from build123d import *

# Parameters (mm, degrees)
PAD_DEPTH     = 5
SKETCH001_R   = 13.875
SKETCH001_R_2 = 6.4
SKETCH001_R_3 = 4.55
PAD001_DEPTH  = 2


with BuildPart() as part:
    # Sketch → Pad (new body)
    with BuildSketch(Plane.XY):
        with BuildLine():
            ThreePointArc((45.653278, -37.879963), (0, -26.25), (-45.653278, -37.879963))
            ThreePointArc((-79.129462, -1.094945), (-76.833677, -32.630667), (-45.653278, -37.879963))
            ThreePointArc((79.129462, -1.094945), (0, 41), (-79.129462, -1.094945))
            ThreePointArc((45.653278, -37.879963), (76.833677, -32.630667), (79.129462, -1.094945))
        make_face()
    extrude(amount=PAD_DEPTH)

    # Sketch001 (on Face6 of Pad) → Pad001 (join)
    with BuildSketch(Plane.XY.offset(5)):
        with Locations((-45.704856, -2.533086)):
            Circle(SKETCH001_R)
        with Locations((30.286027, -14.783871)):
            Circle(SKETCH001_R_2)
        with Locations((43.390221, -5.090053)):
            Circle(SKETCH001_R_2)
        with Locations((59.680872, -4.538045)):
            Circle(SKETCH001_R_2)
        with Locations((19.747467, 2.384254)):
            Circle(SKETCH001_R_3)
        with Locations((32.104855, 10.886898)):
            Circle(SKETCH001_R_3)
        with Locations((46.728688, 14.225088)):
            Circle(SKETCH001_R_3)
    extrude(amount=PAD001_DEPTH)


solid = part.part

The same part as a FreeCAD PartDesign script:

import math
import FreeCAD as App
import Part
import Sketcher
from FreeCAD import Vector
Q = App.Units.Quantity

doc = App.newDocument("Part")
params = doc.addObject("Spreadsheet::Sheet", "Params")
for row, (alias, value) in enumerate([
    ("pad1_length", "5 mm"),
    ("sketch2_diameter", "12.8 mm"),
    ("sketch2_diameter2", "9.1 mm"),
    ("sketch2_diameter3", "27.75 mm"),
    ("pad2_length", "2 mm"),
], start=1):
    params.set(f"A{row}", alias)
    params.set(f"B{row}", "=" + value)
    params.setAlias(f"B{row}", alias)

body = doc.addObject("PartDesign::Body", "Body")

# Sketch on XY plane
sketch1 = body.newObject("Sketcher::SketchObject", "Sketch")
sketch1.AttachmentSupport = (doc.getObject("XY_Plane"), [""])
sketch1.MapMode = "FlatFace"
sketch1.addGeometry([
    Part.ArcOfCircle(Part.Circle(Vector(0, -122, 0), Vector(0, 0, 1), 95), math.radians(61), math.radians(119)),
    Part.ArcOfCircle(Part.Circle(Vector(58, -15, 0), Vector(0, 0, 1), 26), math.radians(-119), math.radians(34)),
    Part.ArcOfCircle(Part.Circle(Vector(0, -54, 0), Vector(0, 0, 1), 95), math.radians(34), math.radians(146)),
    Part.ArcOfCircle(Part.Circle(Vector(-58, -15, 0), Vector(0, 0, 1), 26), math.radians(146), math.radians(299)),
], False)
sketch1.addConstraint([
    Sketcher.Constraint("Tangent", 0, 1, 1, 1),
    Sketcher.Constraint("Tangent", 1, 2, 2, 1),
    Sketcher.Constraint("Tangent", 2, 2, 3, 1),
    Sketcher.Constraint("Tangent", 3, 2, 0, 2),
    Sketcher.Constraint("Equal", 0, 2),
    Sketcher.Constraint("Equal", 1, 3),
    Sketcher.Constraint("Symmetric", 1, 3, 3, 3, -2),
    Sketcher.Constraint("DistanceY", 0, 3, 2, 3, Q("67.249999 mm")),
    Sketcher.Constraint("Radius", 0, Q("95.420675 mm")),
    Sketcher.Constraint("Radius", 1, Q("25.599054 mm")),
    Sketcher.Constraint("DistanceY", 0, 3, -1, 1, Q("121.670675 mm")),
])
pad1 = body.newObject("PartDesign::Pad", "Pad")
pad1.Profile = sketch1
pad1.setExpression("Length", "Params.pad1_length")

# Sketch on XY plane
sketch2 = body.newObject("Sketcher::SketchObject", "Sketch001")
sketch2.AttachmentSupport = (doc.getObject("XY_Plane"), [""])
sketch2.MapMode = "FlatFace"
sketch2.AttachmentOffset = App.Placement(Vector(0, 0, 5), App.Rotation())
sketch2.addGeometry([
    Part.Circle(Vector(-45.7, -2.5, 0), Vector(0, 0, 1), 13.9),  # 0
    Part.Circle(Vector(30.3, -14.8, 0), Vector(0, 0, 1), 6.4),  # 1
    Part.Circle(Vector(43.4, -5.1, 0), Vector(0, 0, 1), 6.4),  # 2
    Part.Circle(Vector(59.7, -4.5, 0), Vector(0, 0, 1), 6.4),  # 3
    Part.Circle(Vector(19.7, 2.4, 0), Vector(0, 0, 1), 4.5),  # 4
    Part.Circle(Vector(32.1, 10.9, 0), Vector(0, 0, 1), 4.5),  # 5
    Part.Circle(Vector(46.7, 14.2, 0), Vector(0, 0, 1), 4.5),  # 6
], False)
sketch2.addConstraint([
    Sketcher.Constraint("Equal", 1, 2),
    Sketcher.Constraint("Equal", 2, 3),
    Sketcher.Constraint("Equal", 4, 5),
    Sketcher.Constraint("Equal", 5, 6),
    Sketcher.Constraint("Diameter", 1, Q("12.8 mm")),
    Sketcher.Constraint("Diameter", 4, Q("9.1 mm")),
    Sketcher.Constraint("Diameter", 0, Q("27.75 mm")),
    Sketcher.Constraint("DistanceY", 3, 3, 4, 3, Q("6.922299 mm")),
    Sketcher.Constraint("DistanceY", 1, 3, -1, 1, Q("14.783871 mm")),
    Sketcher.Constraint("DistanceX", -1, 1, 2, 3, Q("43.390221 mm")),
    Sketcher.Constraint("DistanceX", 2, 3, 3, 3, Q("16.290651 mm")),
    Sketcher.Constraint("DistanceX", 0, 3, 3, 3, Q("105.385728 mm")),
    Sketcher.Constraint("DistanceY", 3, 3, 0, 3, Q("2.004959 mm")),
    Sketcher.Constraint("DistanceX", 4, 3, 1, 3, Q("10.53856 mm")),
    Sketcher.Constraint("DistanceY", 2, 3, 5, 3, Q("15.976951 mm")),
    Sketcher.Constraint("DistanceY", 1, 3, 5, 3, Q("25.670769 mm")),
    Sketcher.Constraint("DistanceX", 0, 3, 5, 3, Q("77.809711 mm")),
    Sketcher.Constraint("DistanceY", 5, 3, 6, 3, Q("3.33819 mm")),
    Sketcher.Constraint("DistanceX", 4, 3, 6, 3, Q("26.981221 mm")),
    Sketcher.Constraint("DistanceY", 0, 3, -1, 1, Q("2.533086 mm")),
    Sketcher.Constraint("DistanceX", -1, 1, 1, 3, Q("30.286027 mm")),
])
sketch2.setExpression("Constraints[4]", "Params.sketch2_diameter")
sketch2.setExpression("Constraints[5]", "Params.sketch2_diameter2")
sketch2.setExpression("Constraints[6]", "Params.sketch2_diameter3")
pad2 = body.newObject("PartDesign::Pad", "Pad001")
pad2.Profile = sketch2
pad2.setExpression("Length", "Params.pad2_length")

doc.recompute()
